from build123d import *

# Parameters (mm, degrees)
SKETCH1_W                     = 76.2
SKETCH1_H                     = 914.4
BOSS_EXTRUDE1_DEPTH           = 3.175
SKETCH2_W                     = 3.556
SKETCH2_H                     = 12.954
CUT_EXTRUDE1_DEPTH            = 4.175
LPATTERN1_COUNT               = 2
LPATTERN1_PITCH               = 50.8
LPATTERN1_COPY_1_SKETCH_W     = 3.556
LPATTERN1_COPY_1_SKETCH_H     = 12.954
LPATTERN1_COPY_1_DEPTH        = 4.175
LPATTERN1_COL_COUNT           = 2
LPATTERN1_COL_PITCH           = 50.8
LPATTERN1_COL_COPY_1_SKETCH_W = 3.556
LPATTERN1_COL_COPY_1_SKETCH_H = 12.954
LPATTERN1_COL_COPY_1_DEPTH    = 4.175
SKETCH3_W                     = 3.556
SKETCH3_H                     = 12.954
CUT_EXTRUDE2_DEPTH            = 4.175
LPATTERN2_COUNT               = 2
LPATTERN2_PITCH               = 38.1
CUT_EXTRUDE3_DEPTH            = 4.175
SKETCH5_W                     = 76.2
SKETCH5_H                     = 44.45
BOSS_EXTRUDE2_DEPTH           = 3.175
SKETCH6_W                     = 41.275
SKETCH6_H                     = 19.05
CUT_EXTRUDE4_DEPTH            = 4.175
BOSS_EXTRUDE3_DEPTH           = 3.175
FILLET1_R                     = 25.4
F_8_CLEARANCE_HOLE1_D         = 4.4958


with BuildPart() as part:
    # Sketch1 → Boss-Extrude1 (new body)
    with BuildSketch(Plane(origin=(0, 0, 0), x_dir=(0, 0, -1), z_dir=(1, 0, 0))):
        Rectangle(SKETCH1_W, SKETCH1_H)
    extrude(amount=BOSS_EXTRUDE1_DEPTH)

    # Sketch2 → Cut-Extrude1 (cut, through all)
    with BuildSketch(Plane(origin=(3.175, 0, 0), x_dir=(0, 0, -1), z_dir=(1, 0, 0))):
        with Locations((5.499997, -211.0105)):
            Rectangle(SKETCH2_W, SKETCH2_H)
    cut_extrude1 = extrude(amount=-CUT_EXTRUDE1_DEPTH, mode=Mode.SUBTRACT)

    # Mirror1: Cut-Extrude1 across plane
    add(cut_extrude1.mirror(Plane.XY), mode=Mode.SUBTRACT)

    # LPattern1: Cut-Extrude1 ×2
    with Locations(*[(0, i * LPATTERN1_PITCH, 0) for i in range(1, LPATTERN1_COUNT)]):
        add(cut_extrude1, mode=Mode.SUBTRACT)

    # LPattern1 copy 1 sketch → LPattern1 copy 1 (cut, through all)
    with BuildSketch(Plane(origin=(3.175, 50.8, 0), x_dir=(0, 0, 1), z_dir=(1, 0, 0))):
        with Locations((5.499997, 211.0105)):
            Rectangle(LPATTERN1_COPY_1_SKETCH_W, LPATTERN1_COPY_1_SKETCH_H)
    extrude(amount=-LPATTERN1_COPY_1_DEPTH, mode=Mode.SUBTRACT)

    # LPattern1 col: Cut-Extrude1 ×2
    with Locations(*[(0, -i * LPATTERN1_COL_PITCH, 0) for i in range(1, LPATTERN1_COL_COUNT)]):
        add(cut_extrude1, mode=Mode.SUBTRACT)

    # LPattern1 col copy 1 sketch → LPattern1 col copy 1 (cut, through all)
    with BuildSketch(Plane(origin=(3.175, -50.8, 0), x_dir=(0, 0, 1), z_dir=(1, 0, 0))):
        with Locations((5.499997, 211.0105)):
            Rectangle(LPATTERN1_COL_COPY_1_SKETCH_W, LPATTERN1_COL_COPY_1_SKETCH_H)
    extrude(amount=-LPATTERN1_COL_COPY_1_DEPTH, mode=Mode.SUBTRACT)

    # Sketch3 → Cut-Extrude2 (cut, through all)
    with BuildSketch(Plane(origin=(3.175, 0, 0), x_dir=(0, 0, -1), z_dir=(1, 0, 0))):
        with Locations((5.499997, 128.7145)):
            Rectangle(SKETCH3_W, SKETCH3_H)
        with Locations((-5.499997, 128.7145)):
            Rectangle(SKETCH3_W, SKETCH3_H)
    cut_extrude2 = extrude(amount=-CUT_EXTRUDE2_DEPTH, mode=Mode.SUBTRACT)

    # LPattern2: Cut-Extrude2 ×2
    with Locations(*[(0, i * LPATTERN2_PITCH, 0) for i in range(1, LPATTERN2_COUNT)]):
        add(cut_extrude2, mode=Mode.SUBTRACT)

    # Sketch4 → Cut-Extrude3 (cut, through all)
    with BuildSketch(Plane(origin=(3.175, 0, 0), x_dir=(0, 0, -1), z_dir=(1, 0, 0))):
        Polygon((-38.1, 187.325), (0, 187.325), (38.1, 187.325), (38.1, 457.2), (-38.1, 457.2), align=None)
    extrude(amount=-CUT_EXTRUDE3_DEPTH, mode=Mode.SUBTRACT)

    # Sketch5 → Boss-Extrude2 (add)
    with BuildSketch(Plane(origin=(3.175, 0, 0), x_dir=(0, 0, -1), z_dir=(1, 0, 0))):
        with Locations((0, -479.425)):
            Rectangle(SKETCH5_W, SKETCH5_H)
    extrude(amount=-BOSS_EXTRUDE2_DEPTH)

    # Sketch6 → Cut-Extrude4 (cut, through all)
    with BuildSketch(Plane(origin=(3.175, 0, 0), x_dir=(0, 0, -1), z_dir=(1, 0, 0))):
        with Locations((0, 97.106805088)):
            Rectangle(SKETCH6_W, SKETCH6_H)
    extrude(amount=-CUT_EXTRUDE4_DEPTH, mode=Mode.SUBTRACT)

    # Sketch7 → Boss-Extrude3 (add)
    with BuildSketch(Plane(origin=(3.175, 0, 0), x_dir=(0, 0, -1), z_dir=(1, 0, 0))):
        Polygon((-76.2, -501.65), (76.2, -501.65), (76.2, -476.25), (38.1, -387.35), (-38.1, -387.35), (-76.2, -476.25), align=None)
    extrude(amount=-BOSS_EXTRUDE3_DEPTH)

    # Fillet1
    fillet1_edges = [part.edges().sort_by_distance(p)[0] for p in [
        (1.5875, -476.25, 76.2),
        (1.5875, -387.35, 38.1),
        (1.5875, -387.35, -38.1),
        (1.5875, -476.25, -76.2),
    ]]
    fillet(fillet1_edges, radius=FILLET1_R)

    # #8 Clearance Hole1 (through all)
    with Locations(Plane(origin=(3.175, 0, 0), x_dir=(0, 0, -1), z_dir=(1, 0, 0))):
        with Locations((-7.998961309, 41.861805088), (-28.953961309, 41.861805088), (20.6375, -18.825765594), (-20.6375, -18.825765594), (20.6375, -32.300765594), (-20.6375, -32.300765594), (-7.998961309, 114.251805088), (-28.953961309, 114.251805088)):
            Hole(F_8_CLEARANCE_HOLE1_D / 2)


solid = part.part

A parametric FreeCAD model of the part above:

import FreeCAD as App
import Part
import Sketcher
from FreeCAD import Vector
Q = App.Units.Quantity


def edges_at(feature, points):
    """Names of the edges that pass closest to the given points."""
    edges = feature.Shape.Edges
    near = lambda p: min(range(len(edges)), key=lambda i: edges[i].distToShape(Part.Vertex(*p))[0])
    return sorted({f"Edge{near(p) + 1}" for p in points})


def add_polygon(sketch, points):
    """Adds a closed chain of lines whose ends are joined by coincident constraints."""
    first, n = sketch.GeometryCount, len(points)
    for a, b in zip(points, points[1:] + points[:1]):
        sketch.addGeometry(Part.LineSegment(App.Vector(*a, 0), App.Vector(*b, 0)), False)
    for i in range(n):
        sketch.addConstraint(Sketcher.Constraint("Coincident", first + i, 2, first + (i + 1) % n, 1))

doc = App.newDocument("Part")
body = doc.addObject("PartDesign::Body", "Body")

# Sketch on YZ plane
sketch1 = doc.addObject("Sketcher::SketchObject", "Sketch")
body.addObject(sketch1)
sketch1.AttachmentSupport = (doc.YZ_Plane, [""])
sketch1.MapMode = "FlatFace"
add_polygon(sketch1, [(457.2, 38.1), (-457.2, 38.1), (-457.2, -38.1), (457.2, -38.1)])  # lines 0-3
sketch1.addConstraint([
    Sketcher.Constraint("Horizontal", 0),
    Sketcher.Constraint("Vertical", 1),
    Sketcher.Constraint("Horizontal", 2),
    Sketcher.Constraint("Vertical", 3),
    Sketcher.Constraint("Symmetric", 0, 2, 2, 2, -1, 1),
    Sketcher.Constraint("DistanceX", 0, 2, 0, 1, Q("36 in")),
    Sketcher.Constraint("DistanceY", 1, 2, 1, 1, Q("3 in")),
])
pad1 = doc.addObject("PartDesign::Pad", "Pad")
body.addObject(pad1)
pad1.Profile = sketch1
pad1.Length = Q("0.125 in")

# Sketch on YZ plane
sketch2 = doc.addObject("Sketcher::SketchObject", "Sketch001")
body.addObject(sketch2)
sketch2.AttachmentSupport = (doc.YZ_Plane, [""])
sketch2.MapMode = "FlatFace"
sketch2.AttachmentOffset = App.Placement(Vector(0, 0, 0.125 * 25.4), App.Rotation())
add_polygon(sketch2, [(-204.5335, -3.721997), (-217.4875, -3.721997), (-217.4875, -7.277997), (-204.5335, -7.277997)])  # lines 0-3
sketch2.addConstraint([
    Sketcher.Constraint("Horizontal", 0),
    Sketcher.Constraint("Vertical", 1),
    Sketcher.Constraint("Horizontal", 2),
    Sketcher.Constraint("Vertical", 3),
    Sketcher.Constraint("DistanceX", 0, 2, 0, 1, Q("0.51 in")),
    Sketcher.Constraint("DistanceY", 1, 2, 1, 1, Q("0.14 in")),
    Sketcher.Constraint("DistanceX", 0, 2, -1, 1, Q("8.5625 in")),
    Sketcher.Constraint("DistanceY", 0, 2, -1, 1, Q("3.721997 mm")),
])
pocket1 = doc.addObject("PartDesign::Pocket", "Pocket")
body.addObject(pocket1)
pocket1.Profile = sketch2
pocket1.Type = "ThroughAll"
doc.recompute()

mirrored = doc.addObject("PartDesign::Mirrored", "Mirrored")
body.addObject(mirrored)
mirrored.Originals = [pocket1]
mirrored.MirrorPlane = (doc.XY_Plane, [""])
body.Tip = mirrored
doc.recompute()

linearpattern = doc.addObject("PartDesign::LinearPattern", "LinearPattern")
body.addObject(linearpattern)
linearpattern.Originals = [pocket1]
linearpattern.Direction = (doc.Y_Axis, [""])
linearpattern.Mode = "offset"
linearpattern.Offset = Q("2 in")
linearpattern.Occurrences = 2
body.Tip = linearpattern

# Sketch on YZ plane
sketch3 = doc.addObject("Sketcher::SketchObject", "Sketch002")
body.addObject(sketch3)
sketch3.AttachmentSupport = (doc.YZ_Plane, [""])
sketch3.MapMode = "FlatFace"
sketch3.AttachmentOffset = App.Placement(Vector(0, 0, 0.125 * 25.4), App.Rotation())
add_polygon(sketch3, [(-166.6875, 3.721997), (-153.7335, 3.721997), (-153.7335, 7.277997), (-166.6875, 7.277997)])  # lines 0-3
sketch3.addConstraint([
    Sketcher.Constraint("Horizontal", 0),
    Sketcher.Constraint("Vertical", 1),
    Sketcher.Constraint("Horizontal", 2),
    Sketcher.Constraint("Vertical", 3),
    Sketcher.Constraint("DistanceX", 0, 1, 0, 2, Q("0.51 in")),
    Sketcher.Constraint("DistanceY", 1, 1, 1, 2, Q("0.14 in")),
    Sketcher.Constraint("DistanceX", 2, 2, -1, 1, Q("6.5625 in")),
    Sketcher.Constraint("DistanceY", -1, 1, 0, 2, Q("3.721997 mm")),
])
pocket2 = doc.addObject("PartDesign::Pocket", "Pocket001")
body.addObject(pocket2)
pocket2.Profile = sketch3
pocket2.Type = "ThroughAll"
doc.recompute()

linearpattern2 = doc.addObject("PartDesign::LinearPattern", "LinearPattern001")
body.addObject(linearpattern2)
linearpattern2.Originals = [pocket1]
linearpattern2.Direction = (doc.Y_Axis, [""])
linearpattern2.Mode = "offset"
linearpattern2.Offset = Q("2 in")
linearpattern2.Occurrences = 2
linearpattern2.Reversed = True
body.Tip = linearpattern2

# Sketch on YZ plane
sketch4 = doc.addObject("Sketcher::SketchObject", "Sketch003")
body.addObject(sketch4)
sketch4.AttachmentSupport = (doc.YZ_Plane, [""])
sketch4.MapMode = "FlatFace"
sketch4.AttachmentOffset = App.Placement(Vector(0, 0, 0.125 * 25.4), App.Rotation())
add_polygon(sketch4, [(-268.2875, 3.721997), (-255.3335, 3.721997), (-255.3335, 7.277997), (-268.2875, 7.277997)])  # lines 0-3
sketch4.addConstraint([
    Sketcher.Constraint("Horizontal", 0),
    Sketcher.Constraint("Vertical", 1),
    Sketcher.Constraint("Horizontal", 2),
    Sketcher.Constraint("Vertical", 3),
    Sketcher.Constraint("DistanceX", 0, 1, 0, 2, Q("0.51 in")),
    Sketcher.Constraint("DistanceY", 1, 1, 1, 2, Q("0.14 in")),
    Sketcher.Constraint("DistanceX", 2, 2, -1, 1, Q("10.5625 in")),
    Sketcher.Constraint("DistanceY", -1, 1, 0, 2, Q("3.721997 mm")),
])
pocket3 = doc.addObject("PartDesign::Pocket", "Pocket002")
body.addObject(pocket3)
pocket3.Profile = sketch4
pocket3.Type = "ThroughAll"

# Sketch on YZ plane
sketch5 = doc.addObject("Sketcher::SketchObject", "Sketch004")
body.addObject(sketch5)
sketch5.AttachmentSupport = (doc.YZ_Plane, [""])
sketch5.MapMode = "FlatFace"
sketch5.AttachmentOffset = App.Placement(Vector(0, 0, 0.125 * 25.4), App.Rotation())
add_polygon(sketch5, [(135.1915, -3.721997), (122.2375, -3.721997), (122.2375, -7.277997), (135.1915, -7.277997)])  # lines 0-3
add_polygon(sketch5, [(135.1915, 7.277997), (122.2375, 7.277997), (122.2375, 3.721997), (135.1915, 3.721997)])  # lines 4-7
sketch5.addConstraint([
    Sketcher.Constraint("Horizontal", 0),
    Sketcher.Constraint("Vertical", 1),
    Sketcher.Constraint("Horizontal", 2),
    Sketcher.Constraint("Vertical", 3),
    Sketcher.Constraint("Horizontal", 4),
    Sketcher.Constraint("Vertical", 5),
    Sketcher.Constraint("Horizontal", 6),
    Sketcher.Constraint("Vertical", 7),
    Sketcher.Constraint("Symmetric", 1, 2, 4, 2, -1),
    Sketcher.Constraint("Symmetric", 3, 2, 6, 2, -1),
    Sketcher.Constraint("DistanceX", 0, 2, 0, 1, Q("0.51 in")),
    Sketcher.Constraint("DistanceY", 1, 2, 1, 1, Q("0.14 in")),
    Sketcher.Constraint("DistanceX", -1, 1, 0, 2, Q("4.8125 in")),
    Sketcher.Constraint("DistanceY", 0, 2, -1, 1, Q("3.721997 mm")),
])
pocket4 = doc.addObject("PartDesign::Pocket", "Pocket003")
body.addObject(pocket4)
pocket4.Profile = sketch5
pocket4.Type = "ThroughAll"
doc.recompute()

linearpattern3 = doc.addObject("PartDesign::LinearPattern", "LinearPattern002")
body.addObject(linearpattern3)
linearpattern3.Originals = [pocket4]
linearpattern3.Direction = (doc.Y_Axis, [""])
linearpattern3.Mode = "offset"
linearpattern3.Offset = Q("1.5 in")
linearpattern3.Occurrences = 2
body.Tip = linearpattern3

# Sketch on YZ plane
sketch6 = doc.addObject("Sketcher::SketchObject", "Sketch005")
body.addObject(sketch6)
sketch6.AttachmentSupport = (doc.YZ_Plane, [""])
sketch6.MapMode = "FlatFace"
sketch6.AttachmentOffset = App.Placement(Vector(0, 0, 0.125 * 25.4), App.Rotation())
add_polygon(sketch6, [(187.325, 38.1), (187.325, -38.1), (457.2, -38.1), (457.2, 38.1)])  # lines 0-3
sketch6.addConstraint([
    Sketcher.Constraint("Vertical", 0),
    Sketcher.Constraint("Horizontal", 1),
    Sketcher.Constraint("Vertical", 2),
    Sketcher.Constraint("Horizontal", 3),
    Sketcher.Constraint("DistanceY", 0, 2, 0, 1, Q("3 in")),
    Sketcher.Constraint("DistanceX", -1, 1, 1, 2, Q("18 in")),
    Sketcher.Constraint("DistanceY", 0, 2, -1, 1, Q("1.5 in")),
    Sketcher.Constraint("DistanceX", 1, 1, 1, 2, Q("10.625 in")),
])
pocket5 = doc.addObject("PartDesign::Pocket", "Pocket004")
body.addObject(pocket5)
pocket5.Profile = sketch6
pocket5.Type = "ThroughAll"

# Sketch on YZ plane
sketch7 = doc.addObject("Sketcher::SketchObject", "Sketch006")
body.addObject(sketch7)
sketch7.AttachmentSupport = (doc.YZ_Plane, [""])
sketch7.MapMode = "FlatFace"
sketch7.AttachmentOffset = App.Placement(Vector(0, 0, 0.125 * 25.4), App.Rotation())
add_polygon(sketch7, [(-457.2, 38.1), (-501.65, 38.1), (-501.65, -38.1), (-457.2, -38.1)])  # lines 0-3
sketch7.addConstraint([
    Sketcher.Constraint("Horizontal", 0),
    Sketcher.Constraint("Vertical", 1),
    Sketcher.Constraint("Horizontal", 2),
    Sketcher.Constraint("Vertical", 3),
    Sketcher.Constraint("DistanceY", 1, 2, 1, 1, Q("3 in")),
    Sketcher.Constraint("DistanceX", 2, 2, -1, 1, Q("18 in")),
    Sketcher.Constraint("DistanceX", 0, 2, 0, 1, Q("1.75 in")),
    Sketcher.Constraint("DistanceY", -1, 1, 0, 2, Q("1.5 in")),
])
pad2 = doc.addObject("PartDesign::Pad", "Pad001")
body.addObject(pad2)
pad2.Profile = sketch7
pad2.Length = Q("0.125 in")
pad2.Reversed = True

# Sketch on YZ plane
sketch8 = doc.addObject("Sketcher::SketchObject", "Sketch007")
body.addObject(sketch8)
sketch8.AttachmentSupport = (doc.YZ_Plane, [""])
sketch8.MapMode = "FlatFace"
sketch8.AttachmentOffset = App.Placement(Vector(0, 0, 0.125 * 25.4), App.Rotation())
add_polygon(sketch8, [(106.631805, 20.6375), (87.581805, 20.6375), (87.581805, -20.6375), (106.631805, -20.6375)])  # lines 0-3
sketch8.addConstraint([
    Sketcher.Constraint("Horizontal", 0),
    Sketcher.Constraint("Vertical", 1),
    Sketcher.Constraint("Horizontal", 2),
    Sketcher.Constraint("Vertical", 3),
    Sketcher.Constraint("DistanceX", 0, 2, 0, 1, Q("0.75 in")),
    Sketcher.Constraint("DistanceY", 1, 2, 1, 1, Q("1.625 in")),
    Sketcher.Constraint("DistanceY", -1, 1, 0, 2, Q("0.8125 in")),
    Sketcher.Constraint("DistanceX", -1, 1, 0, 2, Q("87.581805 mm")),
])
pocket6 = doc.addObject("PartDesign::Pocket", "Pocket005")
body.addObject(pocket6)
pocket6.Profile = sketch8
pocket6.Type = "ThroughAll"

# Sketch on YZ plane
sketch9 = doc.addObject("Sketcher::SketchObject", "Sketch008")
body.addObject(sketch9)
sketch9.AttachmentSupport = (doc.YZ_Plane, [""])
sketch9.MapMode = "FlatFace"
sketch9.AttachmentOffset = App.Placement(Vector(0, 0, 0.125 * 25.4), App.Rotation())
add_polygon(sketch9, [(-501.65, 76.2), (-501.65, -76.2), (-476.25, -76.2), (-387.35, -38.1), (-387.35, 38.1), (-476.25, 76.2)])  # lines 0-5
sketch9.addConstraint([
    Sketcher.Constraint("Vertical", 0),
    Sketcher.Constraint("Horizontal", 1),
    Sketcher.Constraint("Vertical", 3),
    Sketcher.Constraint("Horizontal", 5),
    Sketcher.Constraint("Symmetric", 1, 2, 4, 2, -1),
    Sketcher.Constraint("Equal", 2, 4),
    Sketcher.Constraint("DistanceX", 1, 1, 1, 2, Q("1 in")),
    Sketcher.Constraint("DistanceY", 0, 2, 0, 1, Q("6 in")),
    Sketcher.Constraint("DistanceY", 3, 1, 3, 2, Q("3 in")),
    Sketcher.Constraint("DistanceX", 1, 2, 2, 2, Q("3.5 in")),
    Sketcher.Constraint("DistanceX", 0, 2, -1, 1, Q("19.75 in")),
])
pad3 = doc.addObject("PartDesign::Pad", "Pad002")
body.addObject(pad3)
pad3.Profile = sketch9
pad3.Length = Q("0.125 in")
pad3.Reversed = True
doc.recompute()

fillet = doc.addObject("PartDesign::Fillet", "Fillet")
body.addObject(fillet)
fillet.Base = (pad3, edges_at(pad3, [
    (1.587, -476.25, 76.2),
    (1.587, -387.35, 38.1),
    (1.587, -387.35, -38.1),
    (1.587, -476.25, -76.2),
]))
fillet.Radius = Q("1 in")

# Sketch on YZ plane
sketch10 = doc.addObject("Sketcher::SketchObject", "Sketch009")
body.addObject(sketch10)
sketch10.AttachmentSupport = (doc.YZ_Plane, [""])
sketch10.MapMode = "FlatFace"
sketch10.AttachmentOffset = App.Placement(Vector(0, 0, 0.125 * 25.4), App.Rotation())
sketch10.addGeometry([
    Part.Circle(Vector(41.861805, 7.998961, 0), Vector(0, 0, 1), 2.2479),  # 0
    Part.Circle(Vector(41.861805, 28.953961, 0), Vector(0, 0, 1), 2.2479),  # 1
    Part.Circle(Vector(-18.825766, -20.6375, 0), Vector(0, 0, 1), 2.2479),  # 2
    Part.Circle(Vector(-18.825766, 20.6375, 0), Vector(0, 0, 1), 2.2479),  # 3
    Part.Circle(Vector(-32.300766, -20.6375, 0), Vector(0, 0, 1), 2.2479),  # 4
    Part.Circle(Vector(-32.300766, 20.6375, 0), Vector(0, 0, 1), 2.2479),  # 5
    Part.Circle(Vector(114.251805, 7.998961, 0), Vector(0, 0, 1), 2.2479),  # 6
    Part.Circle(Vector(114.251805, 28.953961, 0), Vector(0, 0, 1), 2.2479),  # 7
], False)
sketch10.addConstraint([
    Sketcher.Constraint("Equal", 0, 1),
    Sketcher.Constraint("Equal", 1, 2),
    Sketcher.Constraint("Equal", 2, 3),
    Sketcher.Constraint("Equal", 3, 4),
    Sketcher.Constraint("Equal", 4, 5),
    Sketcher.Constraint("Equal", 5, 6),
    Sketcher.Constraint("Equal", 6, 7),
    Sketcher.Constraint("Symmetric", 2, 3, 3, 3, -1),
    Sketcher.Constraint("Symmetric", 4, 3, 5, 3, -1),
    Sketcher.Constraint("Horizontal", 2, 3, 4, 3),
    Sketcher.Constraint("Horizontal", 0, 3, 6, 3),
    Sketcher.Constraint("Horizontal", 1, 3, 7, 3),
    Sketcher.Constraint("Vertical", 0, 3, 1, 3),
    Sketcher.Constraint("Vertical", 6, 3, 7, 3),
    Sketcher.Constraint("Diameter", 0, Q("0.177 in")),
    Sketcher.Constraint("DistanceX", 0, 3, 6, 3, Q("2.85 in")),
    Sketcher.Constraint("DistanceY", 2, 3, -1, 1, Q("0.8125 in")),
    Sketcher.Constraint("DistanceY", 0, 3, 1, 3, Q("0.825 in")),
    Sketcher.Constraint("DistanceX", 4, 3, 2, 3, Q("13.475 mm")),
    Sketcher.Constraint("DistanceY", -1, 1, 0, 3, Q("7.998961 mm")),
    Sketcher.Constraint("DistanceX", 2, 3, 0, 3, Q("60.687571 mm")),
    Sketcher.Constraint("DistanceX", -1, 1, 0, 3, Q("41.861805 mm")),
])
doc.recompute()
hole = doc.addObject("PartDesign::Hole", "Hole")
body.addObject(hole)
hole.Profile = sketch10
hole.ThreadType = "None"
hole.Diameter = Q("0.177 in")
hole.DepthType = "ThroughAll"

doc.recompute()
